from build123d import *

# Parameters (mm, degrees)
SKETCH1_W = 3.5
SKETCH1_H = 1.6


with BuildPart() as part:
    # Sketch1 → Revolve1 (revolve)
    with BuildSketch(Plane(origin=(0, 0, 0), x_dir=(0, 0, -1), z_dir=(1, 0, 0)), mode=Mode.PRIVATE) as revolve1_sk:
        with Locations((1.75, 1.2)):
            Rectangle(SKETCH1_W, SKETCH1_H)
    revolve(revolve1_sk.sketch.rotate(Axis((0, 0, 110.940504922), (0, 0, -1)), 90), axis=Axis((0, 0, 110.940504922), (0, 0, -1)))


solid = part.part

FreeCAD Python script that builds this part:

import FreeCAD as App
import Part
import Sketcher
from FreeCAD import Vector
Q = App.Units.Quantity

doc = App.newDocument("Part")
params = doc.addObject("Spreadsheet::Sheet", "Params")
for row, (alias, value) in enumerate([
    ("sketch1_width", "1.6 mm"),
    ("sketch1_height", "3.5 mm"),
    ("revolution_angle", "360 deg"),
], start=1):
    params.set(f"A{row}", alias)
    params.set(f"B{row}", "=" + value)
    params.setAlias(f"B{row}", alias)

body = doc.addObject("PartDesign::Body", "Body")

sketch1 = body.newObject("Sketcher::SketchObject", "Sketch")
sketch1.AttachmentSupport = (doc.getObject("YZ_Plane"), [""])
sketch1.MapMode = "FlatFace"
sketch1.addGeometry([
    Part.LineSegment(Vector(2, 0, 0), Vector(0.4, 0, 0)),
    Part.LineSegment(Vector(0.4, 0, 0), Vector(0.4, -3.5, 0)),
    Part.LineSegment(Vector(0.4, -3.5, 0), Vector(2, -3.5, 0)),
    Part.LineSegment(Vector(2, -3.5, 0), Vector(2, 0, 0)),
], False)
sketch1.addConstraint([
    Sketcher.Constraint("Coincident", 0, 2, 1, 1),
    Sketcher.Constraint("Coincident", 1, 2, 2, 1),
    Sketcher.Constraint("Coincident", 2, 2, 3, 1),
    Sketcher.Constraint("Coincident", 3, 2, 0, 1),
    Sketcher.Constraint("Horizontal", 0),
    Sketcher.Constraint("Vertical", 1),
    Sketcher.Constraint("Horizontal", 2),
    Sketcher.Constraint("Vertical", 3),
    Sketcher.Constraint("PointOnObject", 0, 2, -1),
    Sketcher.Constraint("DistanceX", 0, 2, 0, 1, Q("1.6 mm")),
    Sketcher.Constraint("DistanceY", 1, 2, 1, 1, Q("3.5 mm")),
    Sketcher.Constraint("DistanceX", -1, 1, 2, 2, Q("2 mm")),
])
sketch1.setExpression("Constraints[9]", "Params.sketch1_width")
sketch1.setExpression("Constraints[10]", "Params.sketch1_height")
revolution = body.newObject("PartDesign::Revolution", "Revolution")
revolution.Profile = sketch1
revolution.ReferenceAxis = (sketch1, ["V_Axis"])
revolution.setExpression("Angle", "Params.revolution_angle")

doc.recompute()
